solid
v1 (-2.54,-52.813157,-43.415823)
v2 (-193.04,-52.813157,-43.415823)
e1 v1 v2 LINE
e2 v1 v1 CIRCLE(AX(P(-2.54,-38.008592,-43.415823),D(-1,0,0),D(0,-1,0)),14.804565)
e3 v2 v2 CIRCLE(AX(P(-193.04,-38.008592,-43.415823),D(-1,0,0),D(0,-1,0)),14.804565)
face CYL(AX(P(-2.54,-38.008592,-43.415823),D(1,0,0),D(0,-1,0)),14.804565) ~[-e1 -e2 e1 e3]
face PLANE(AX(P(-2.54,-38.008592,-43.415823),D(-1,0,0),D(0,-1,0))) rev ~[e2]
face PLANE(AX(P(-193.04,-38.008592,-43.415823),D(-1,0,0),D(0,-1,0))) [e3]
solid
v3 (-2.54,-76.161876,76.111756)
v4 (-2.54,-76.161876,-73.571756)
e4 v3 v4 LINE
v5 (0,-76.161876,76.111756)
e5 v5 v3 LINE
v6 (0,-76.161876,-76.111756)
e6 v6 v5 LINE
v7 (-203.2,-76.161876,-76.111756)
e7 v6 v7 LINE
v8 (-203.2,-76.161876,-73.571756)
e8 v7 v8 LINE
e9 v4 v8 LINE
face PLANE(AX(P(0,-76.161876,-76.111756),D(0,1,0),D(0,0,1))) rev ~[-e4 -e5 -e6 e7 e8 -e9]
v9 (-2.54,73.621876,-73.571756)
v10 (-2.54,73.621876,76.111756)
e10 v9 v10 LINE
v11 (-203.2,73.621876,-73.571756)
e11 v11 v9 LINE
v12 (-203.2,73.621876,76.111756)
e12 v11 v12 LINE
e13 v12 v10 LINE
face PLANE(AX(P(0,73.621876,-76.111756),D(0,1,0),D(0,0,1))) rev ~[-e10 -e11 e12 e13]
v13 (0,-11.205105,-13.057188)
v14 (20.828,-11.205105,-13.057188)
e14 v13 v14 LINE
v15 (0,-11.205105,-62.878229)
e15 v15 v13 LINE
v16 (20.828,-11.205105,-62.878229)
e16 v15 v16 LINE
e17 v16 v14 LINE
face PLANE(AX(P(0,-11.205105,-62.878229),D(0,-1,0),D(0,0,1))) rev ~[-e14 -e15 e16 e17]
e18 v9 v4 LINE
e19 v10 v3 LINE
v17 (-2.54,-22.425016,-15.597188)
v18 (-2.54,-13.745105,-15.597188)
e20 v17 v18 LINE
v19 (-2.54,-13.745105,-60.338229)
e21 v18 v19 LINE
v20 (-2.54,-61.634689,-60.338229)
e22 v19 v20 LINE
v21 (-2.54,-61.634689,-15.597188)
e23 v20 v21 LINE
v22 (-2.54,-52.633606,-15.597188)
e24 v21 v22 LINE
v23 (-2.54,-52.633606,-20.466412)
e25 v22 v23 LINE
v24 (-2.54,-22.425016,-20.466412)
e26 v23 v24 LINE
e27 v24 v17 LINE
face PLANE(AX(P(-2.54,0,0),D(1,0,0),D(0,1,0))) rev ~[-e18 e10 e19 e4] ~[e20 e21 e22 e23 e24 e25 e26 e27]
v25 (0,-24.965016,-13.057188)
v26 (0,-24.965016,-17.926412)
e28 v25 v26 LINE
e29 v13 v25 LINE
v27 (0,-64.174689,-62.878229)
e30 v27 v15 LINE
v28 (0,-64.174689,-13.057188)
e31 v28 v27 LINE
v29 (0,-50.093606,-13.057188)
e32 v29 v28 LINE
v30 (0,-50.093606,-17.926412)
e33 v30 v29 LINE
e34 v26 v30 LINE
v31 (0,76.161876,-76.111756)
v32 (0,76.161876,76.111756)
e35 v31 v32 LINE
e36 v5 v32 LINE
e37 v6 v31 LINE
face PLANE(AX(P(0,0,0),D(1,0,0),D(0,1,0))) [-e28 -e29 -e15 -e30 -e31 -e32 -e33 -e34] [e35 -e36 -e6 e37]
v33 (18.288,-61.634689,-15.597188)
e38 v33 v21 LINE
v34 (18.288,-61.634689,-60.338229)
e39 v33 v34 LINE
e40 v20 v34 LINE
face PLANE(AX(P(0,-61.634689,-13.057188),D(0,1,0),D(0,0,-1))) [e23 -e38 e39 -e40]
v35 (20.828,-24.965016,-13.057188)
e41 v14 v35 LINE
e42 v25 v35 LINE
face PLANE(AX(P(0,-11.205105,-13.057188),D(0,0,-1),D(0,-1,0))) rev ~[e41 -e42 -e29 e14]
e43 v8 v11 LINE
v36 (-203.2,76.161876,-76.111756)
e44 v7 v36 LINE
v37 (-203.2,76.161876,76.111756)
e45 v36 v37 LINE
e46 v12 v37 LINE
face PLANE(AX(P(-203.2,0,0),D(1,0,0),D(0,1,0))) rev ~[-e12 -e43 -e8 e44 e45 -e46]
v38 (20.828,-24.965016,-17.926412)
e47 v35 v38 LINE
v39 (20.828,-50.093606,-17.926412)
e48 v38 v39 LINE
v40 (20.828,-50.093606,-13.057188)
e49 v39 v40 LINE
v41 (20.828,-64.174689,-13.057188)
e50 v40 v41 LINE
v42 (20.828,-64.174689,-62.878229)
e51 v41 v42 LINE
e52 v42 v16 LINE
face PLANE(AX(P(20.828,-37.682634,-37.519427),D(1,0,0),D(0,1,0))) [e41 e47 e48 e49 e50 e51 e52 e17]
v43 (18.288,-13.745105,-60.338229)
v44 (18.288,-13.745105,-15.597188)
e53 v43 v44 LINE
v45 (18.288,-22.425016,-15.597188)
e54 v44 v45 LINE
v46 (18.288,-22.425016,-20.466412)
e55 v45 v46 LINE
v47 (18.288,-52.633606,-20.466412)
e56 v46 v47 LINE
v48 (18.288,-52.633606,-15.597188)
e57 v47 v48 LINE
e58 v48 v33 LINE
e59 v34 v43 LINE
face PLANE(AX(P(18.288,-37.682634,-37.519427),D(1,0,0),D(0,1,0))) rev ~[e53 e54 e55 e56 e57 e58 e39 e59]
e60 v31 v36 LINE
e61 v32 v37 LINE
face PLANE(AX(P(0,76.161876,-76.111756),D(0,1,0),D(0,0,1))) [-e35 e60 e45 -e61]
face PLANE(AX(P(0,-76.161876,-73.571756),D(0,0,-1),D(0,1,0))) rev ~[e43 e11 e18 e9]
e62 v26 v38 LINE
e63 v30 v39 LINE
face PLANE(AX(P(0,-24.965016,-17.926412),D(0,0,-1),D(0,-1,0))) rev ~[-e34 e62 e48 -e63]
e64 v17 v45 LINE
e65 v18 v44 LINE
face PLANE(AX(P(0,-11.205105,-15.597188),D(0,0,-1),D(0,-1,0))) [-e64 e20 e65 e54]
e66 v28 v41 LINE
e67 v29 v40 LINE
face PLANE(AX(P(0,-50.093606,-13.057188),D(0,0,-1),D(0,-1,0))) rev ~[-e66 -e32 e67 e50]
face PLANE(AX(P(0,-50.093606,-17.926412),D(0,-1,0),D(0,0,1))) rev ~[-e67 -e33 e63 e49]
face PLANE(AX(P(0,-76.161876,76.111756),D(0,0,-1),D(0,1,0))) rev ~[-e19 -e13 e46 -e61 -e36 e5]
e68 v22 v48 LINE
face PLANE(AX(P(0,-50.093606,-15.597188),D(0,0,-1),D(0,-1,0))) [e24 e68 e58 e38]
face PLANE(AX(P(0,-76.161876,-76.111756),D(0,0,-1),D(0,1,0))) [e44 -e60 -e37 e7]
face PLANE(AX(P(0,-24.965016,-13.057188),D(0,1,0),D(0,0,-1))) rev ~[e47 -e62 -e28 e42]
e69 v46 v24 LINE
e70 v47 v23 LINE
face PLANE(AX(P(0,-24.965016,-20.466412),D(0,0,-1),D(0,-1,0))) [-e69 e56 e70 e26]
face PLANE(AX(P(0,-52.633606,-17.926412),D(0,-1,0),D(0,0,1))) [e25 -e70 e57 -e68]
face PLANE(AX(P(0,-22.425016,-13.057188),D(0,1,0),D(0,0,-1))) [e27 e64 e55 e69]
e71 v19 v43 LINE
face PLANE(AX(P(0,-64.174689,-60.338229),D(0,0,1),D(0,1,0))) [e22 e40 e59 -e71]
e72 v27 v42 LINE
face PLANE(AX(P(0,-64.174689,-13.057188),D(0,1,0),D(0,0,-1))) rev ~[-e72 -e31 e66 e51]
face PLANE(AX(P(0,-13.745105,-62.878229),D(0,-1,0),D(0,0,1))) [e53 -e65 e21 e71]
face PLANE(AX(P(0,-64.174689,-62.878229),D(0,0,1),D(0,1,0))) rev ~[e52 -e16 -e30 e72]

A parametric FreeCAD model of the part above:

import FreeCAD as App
import Part
import Sketcher
Q = App.Units.Quantity


def faces_at(feature, points):
    """Names of the faces that lie closest to the given points."""
    faces = feature.Shape.Faces
    near = lambda p: min(range(len(faces)), key=lambda i: faces[i].distToShape(Part.Vertex(*p))[0])
    return sorted({f"Face{near(p) + 1}" for p in points})

doc = App.newDocument("Part")
body = doc.addObject("PartDesign::Body", "Body")

sketch1 = doc.addObject("Sketcher::SketchObject", "Sketch")
body.addObject(sketch1)
sketch1.AttachmentSupport = (doc.YZ_Plane, [""])
sketch1.MapMode = "FlatFace"
sketch1.addGeometry([
    Part.LineSegment(App.Vector(-76, 76, 0), App.Vector(-76, -76, 0)),
    Part.LineSegment(App.Vector(-76, -76, 0), App.Vector(76, -76, 0)),
    Part.LineSegment(App.Vector(76, -76, 0), App.Vector(76, 76, 0)),
    Part.LineSegment(App.Vector(76, 76, 0), App.Vector(-76, 76, 0)),
], False)
sketch1.addConstraint([
    Sketcher.Constraint("Coincident", 0, 2, 1, 1),
    Sketcher.Constraint("Coincident", 1, 2, 2, 1),
    Sketcher.Constraint("Coincident", 2, 2, 3, 1),
    Sketcher.Constraint("Coincident", 3, 2, 0, 1),
    Sketcher.Constraint("Vertical", 0),
    Sketcher.Constraint("Horizontal", 1),
    Sketcher.Constraint("Vertical", 2),
    Sketcher.Constraint("Horizontal", 3),
    Sketcher.Constraint("Symmetric", 0, 2, 2, 2, -1, 1),
    Sketcher.Constraint("DistanceX", 1, 1, 1, 2, 152.323753),
    Sketcher.Constraint("DistanceY", 0, 2, 0, 1, 152.223513),
])
pad1 = doc.addObject("PartDesign::Pad", "Pad")
body.addObject(pad1)
pad1.Profile = sketch1
pad1.Length = Q("8 in")
pad1.Reversed = True

sketch2 = doc.addObject("Sketcher::SketchObject", "Sketch001")
body.addObject(sketch2)
sketch2.AttachmentSupport = (doc.YZ_Plane, [""])
sketch2.MapMode = "FlatFace"
sketch2.addGeometry([
    Part.LineSegment(App.Vector(-64.2, -13.1, 0), App.Vector(-64.2, -62.9, 0)),
    Part.LineSegment(App.Vector(-64.2, -62.9, 0), App.Vector(-11.2, -62.9, 0)),
    Part.LineSegment(App.Vector(-11.2, -62.9, 0), App.Vector(-11.2, -13.1, 0)),
    Part.LineSegment(App.Vector(-11.2, -13.1, 0), App.Vector(-25, -13.1, 0)),
    Part.LineSegment(App.Vector(-25, -13.1, 0), App.Vector(-25, -17.9, 0)),
    Part.LineSegment(App.Vector(-25, -17.9, 0), App.Vector(-50.1, -17.9, 0)),
    Part.LineSegment(App.Vector(-50.1, -17.9, 0), App.Vector(-50.1, -13.1, 0)),
    Part.LineSegment(App.Vector(-50.1, -13.1, 0), App.Vector(-64.2, -13.1, 0)),
], False)
sketch2.addConstraint([
    Sketcher.Constraint("Coincident", 0, 2, 1, 1),
    Sketcher.Constraint("Coincident", 1, 2, 2, 1),
    Sketcher.Constraint("Coincident", 2, 2, 3, 1),
    Sketcher.Constraint("Coincident", 3, 2, 4, 1),
    Sketcher.Constraint("Coincident", 4, 2, 5, 1),
    Sketcher.Constraint("Coincident", 5, 2, 6, 1),
    Sketcher.Constraint("Coincident", 6, 2, 7, 1),
    Sketcher.Constraint("Coincident", 7, 2, 0, 1),
    Sketcher.Constraint("Vertical", 0),
    Sketcher.Constraint("Horizontal", 1),
    Sketcher.Constraint("Vertical", 2),
    Sketcher.Constraint("Horizontal", 3),
    Sketcher.Constraint("Vertical", 4),
    Sketcher.Constraint("Horizontal", 5),
    Sketcher.Constraint("Vertical", 6),
    Sketcher.Constraint("Horizontal", 7),
    Sketcher.Constraint("Horizontal", 3, 2, 6, 2),
    Sketcher.Constraint("DistanceX", 3, 2, 3, 1, 13.759911),
    Sketcher.Constraint("DistanceX", 5, 2, 5, 1, 25.12859),
    Sketcher.Constraint("DistanceY", 0, 2, 0, 1, 49.821041),
    Sketcher.Constraint("DistanceX", 1, 1, 1, 2, 52.969584),
    Sketcher.Constraint("DistanceY", 4, 2, 4, 1, 4.869224),
    Sketcher.Constraint("DistanceX", 0, 2, -1, 1, 64.174689),
    Sketcher.Constraint("DistanceY", 0, 2, -1, 1, 62.878229),
])
pad2 = doc.addObject("PartDesign::Pad", "Pad001")
body.addObject(pad2)
pad2.Profile = sketch2
pad2.Length = Q("0.82 in")
doc.recompute()

thickness = doc.addObject("PartDesign::Thickness", "Thickness")
body.addObject(thickness)
thickness.Base = (pad2, faces_at(pad2, [(-101.6, -76.162, 0), (-101.6, 0, 76.112), (-203.2, 0, 0)]))
thickness.Value = Q("0.1 in")
thickness.Reversed = True
thickness.Join = "Intersection"
body2 = doc.addObject("PartDesign::Body", "Body001")

sketch3 = doc.addObject("Sketcher::SketchObject", "Sketch002")
body2.addObject(sketch3)
sketch3.AttachmentSupport = (doc.getObject("YZ_Plane001"), [""])
sketch3.MapMode = "FlatFace"
sketch3.AttachmentOffset = App.Placement(App.Vector(0, 0, -0.1 * 25.4), App.Rotation())
sketch3.addGeometry(Part.Circle(App.Vector(-38, -43, 0), App.Vector(0, 0, 1), 15), False)
sketch3.addConstraint([
    Sketcher.Constraint("Diameter", 0, 29.609129),
    Sketcher.Constraint("DistanceX", 0, 3, -1, 1, 38.008592),
    Sketcher.Constraint("DistanceY", 0, 3, -1, 1, 43.415823),
])
pad3 = doc.addObject("PartDesign::Pad", "Pad002")
body2.addObject(pad3)
pad3.Profile = sketch3
pad3.Length = Q("7.5 in")
pad3.Reversed = True

doc.recompute()
